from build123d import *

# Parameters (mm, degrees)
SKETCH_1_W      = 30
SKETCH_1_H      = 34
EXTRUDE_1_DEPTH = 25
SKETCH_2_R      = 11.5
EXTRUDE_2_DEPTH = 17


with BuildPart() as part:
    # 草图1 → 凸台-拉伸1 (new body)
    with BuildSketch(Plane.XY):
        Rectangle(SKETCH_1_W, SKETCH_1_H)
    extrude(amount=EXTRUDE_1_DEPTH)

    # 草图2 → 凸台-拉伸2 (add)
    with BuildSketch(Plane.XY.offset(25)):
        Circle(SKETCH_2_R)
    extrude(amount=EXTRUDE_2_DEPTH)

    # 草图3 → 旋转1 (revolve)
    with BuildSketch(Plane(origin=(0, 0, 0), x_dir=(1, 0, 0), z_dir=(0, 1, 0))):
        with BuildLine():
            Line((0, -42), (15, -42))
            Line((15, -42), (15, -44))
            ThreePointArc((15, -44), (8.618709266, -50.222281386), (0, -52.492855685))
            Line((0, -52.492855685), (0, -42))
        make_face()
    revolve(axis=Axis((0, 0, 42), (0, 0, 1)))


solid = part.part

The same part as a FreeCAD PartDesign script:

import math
import FreeCAD as App
import Part
import Sketcher


def add_polygon(sketch, points):
    """Adds a closed chain of lines whose ends are joined by coincident constraints."""
    first, n = sketch.GeometryCount, len(points)
    for a, b in zip(points, points[1:] + points[:1]):
        sketch.addGeometry(Part.LineSegment(App.Vector(*a, 0), App.Vector(*b, 0)), False)
    for i in range(n):
        sketch.addConstraint(Sketcher.Constraint("Coincident", first + i, 2, first + (i + 1) % n, 1))

doc = App.newDocument("Part")
body = doc.addObject("PartDesign::Body", "Body")

# Sketch on XY plane
sketch1 = body.newObject("Sketcher::SketchObject", "Sketch")
sketch1.AttachmentSupport = (doc.getObject("XY_Plane"), [""])
sketch1.MapMode = "FlatFace"
add_polygon(sketch1, [(-15, 17), (-15, -17), (15, -17), (15, 17)])  # lines 0-3
sketch1.addConstraint([
    Sketcher.Constraint("Vertical", 0),
    Sketcher.Constraint("Horizontal", 1),
    Sketcher.Constraint("Vertical", 2),
    Sketcher.Constraint("Horizontal", 3),
    Sketcher.Constraint("Symmetric", 0, 2, 2, 2, -1, 1),
    Sketcher.Constraint("DistanceX", 1, 1, 1, 2, 30.0),
    Sketcher.Constraint("DistanceY", 0, 2, 0, 1, 34.0),
])
pad1 = body.newObject("PartDesign::Pad", "Pad")
pad1.Profile = sketch1
pad1.Length = 25

# Sketch on XY plane
sketch2 = body.newObject("Sketcher::SketchObject", "Sketch001")
sketch2.AttachmentSupport = (doc.getObject("XY_Plane"), [""])
sketch2.MapMode = "FlatFace"
sketch2.AttachmentOffset = App.Placement(App.Vector(0, 0, 25), App.Rotation())
sketch2.addGeometry(Part.Circle(App.Vector(0, 0, 0), App.Vector(0, 0, 1), 12), False)
sketch2.addConstraint([
    Sketcher.Constraint("Coincident", 0, 3, -1, 1),
    Sketcher.Constraint("Diameter", 0, 23.0),
])
pad2 = body.newObject("PartDesign::Pad", "Pad001")
pad2.Profile = sketch2
pad2.Length = 17

# Sketch on XZ plane
sketch3 = body.newObject("Sketcher::SketchObject", "Sketch002")
sketch3.AttachmentSupport = (doc.getObject("XZ_Plane"), [""])
sketch3.MapMode = "FlatFace"
sketch3.addGeometry([
    Part.LineSegment(App.Vector(15, 42, 0), App.Vector(0, 42, 0)),
    Part.LineSegment(App.Vector(0, 42, 0), App.Vector(0, 52.5, 0)),
    Part.ArcOfCircle(Part.Circle(App.Vector(0, 35, 0), App.Vector(0, 0, 1), 17.5), math.radians(31), math.radians(90)),
    Part.LineSegment(App.Vector(15, 44, 0), App.Vector(15, 42, 0)),
], False)
sketch3.addConstraint([
    Sketcher.Constraint("Coincident", 0, 2, 1, 1),
    Sketcher.Constraint("Coincident", 1, 2, 2, 2),
    Sketcher.Constraint("Coincident", 2, 1, 3, 1),
    Sketcher.Constraint("Coincident", 3, 2, 0, 1),
    Sketcher.Constraint("Horizontal", 0),
    Sketcher.Constraint("Vertical", 1),
    Sketcher.Constraint("Vertical", 3),
    Sketcher.Constraint("PointOnObject", 2, 3, -2),
    Sketcher.Constraint("PointOnObject", 0, 2, -2),
    Sketcher.Constraint("DistanceX", 0, 2, 0, 1, 15.0),
    Sketcher.Constraint("DistanceY", 3, 2, 3, 1, 2.0),
    Sketcher.Constraint("DistanceY", -1, 1, 2, 3, 35.0),
    Sketcher.Constraint("DistanceY", -1, 1, 0, 2, 42.0),
])
revolution = body.newObject("PartDesign::Revolution", "Revolution")
revolution.Profile = sketch3
revolution.ReferenceAxis = (sketch3, ["V_Axis"])
revolution.Angle = 360

doc.recompute()
